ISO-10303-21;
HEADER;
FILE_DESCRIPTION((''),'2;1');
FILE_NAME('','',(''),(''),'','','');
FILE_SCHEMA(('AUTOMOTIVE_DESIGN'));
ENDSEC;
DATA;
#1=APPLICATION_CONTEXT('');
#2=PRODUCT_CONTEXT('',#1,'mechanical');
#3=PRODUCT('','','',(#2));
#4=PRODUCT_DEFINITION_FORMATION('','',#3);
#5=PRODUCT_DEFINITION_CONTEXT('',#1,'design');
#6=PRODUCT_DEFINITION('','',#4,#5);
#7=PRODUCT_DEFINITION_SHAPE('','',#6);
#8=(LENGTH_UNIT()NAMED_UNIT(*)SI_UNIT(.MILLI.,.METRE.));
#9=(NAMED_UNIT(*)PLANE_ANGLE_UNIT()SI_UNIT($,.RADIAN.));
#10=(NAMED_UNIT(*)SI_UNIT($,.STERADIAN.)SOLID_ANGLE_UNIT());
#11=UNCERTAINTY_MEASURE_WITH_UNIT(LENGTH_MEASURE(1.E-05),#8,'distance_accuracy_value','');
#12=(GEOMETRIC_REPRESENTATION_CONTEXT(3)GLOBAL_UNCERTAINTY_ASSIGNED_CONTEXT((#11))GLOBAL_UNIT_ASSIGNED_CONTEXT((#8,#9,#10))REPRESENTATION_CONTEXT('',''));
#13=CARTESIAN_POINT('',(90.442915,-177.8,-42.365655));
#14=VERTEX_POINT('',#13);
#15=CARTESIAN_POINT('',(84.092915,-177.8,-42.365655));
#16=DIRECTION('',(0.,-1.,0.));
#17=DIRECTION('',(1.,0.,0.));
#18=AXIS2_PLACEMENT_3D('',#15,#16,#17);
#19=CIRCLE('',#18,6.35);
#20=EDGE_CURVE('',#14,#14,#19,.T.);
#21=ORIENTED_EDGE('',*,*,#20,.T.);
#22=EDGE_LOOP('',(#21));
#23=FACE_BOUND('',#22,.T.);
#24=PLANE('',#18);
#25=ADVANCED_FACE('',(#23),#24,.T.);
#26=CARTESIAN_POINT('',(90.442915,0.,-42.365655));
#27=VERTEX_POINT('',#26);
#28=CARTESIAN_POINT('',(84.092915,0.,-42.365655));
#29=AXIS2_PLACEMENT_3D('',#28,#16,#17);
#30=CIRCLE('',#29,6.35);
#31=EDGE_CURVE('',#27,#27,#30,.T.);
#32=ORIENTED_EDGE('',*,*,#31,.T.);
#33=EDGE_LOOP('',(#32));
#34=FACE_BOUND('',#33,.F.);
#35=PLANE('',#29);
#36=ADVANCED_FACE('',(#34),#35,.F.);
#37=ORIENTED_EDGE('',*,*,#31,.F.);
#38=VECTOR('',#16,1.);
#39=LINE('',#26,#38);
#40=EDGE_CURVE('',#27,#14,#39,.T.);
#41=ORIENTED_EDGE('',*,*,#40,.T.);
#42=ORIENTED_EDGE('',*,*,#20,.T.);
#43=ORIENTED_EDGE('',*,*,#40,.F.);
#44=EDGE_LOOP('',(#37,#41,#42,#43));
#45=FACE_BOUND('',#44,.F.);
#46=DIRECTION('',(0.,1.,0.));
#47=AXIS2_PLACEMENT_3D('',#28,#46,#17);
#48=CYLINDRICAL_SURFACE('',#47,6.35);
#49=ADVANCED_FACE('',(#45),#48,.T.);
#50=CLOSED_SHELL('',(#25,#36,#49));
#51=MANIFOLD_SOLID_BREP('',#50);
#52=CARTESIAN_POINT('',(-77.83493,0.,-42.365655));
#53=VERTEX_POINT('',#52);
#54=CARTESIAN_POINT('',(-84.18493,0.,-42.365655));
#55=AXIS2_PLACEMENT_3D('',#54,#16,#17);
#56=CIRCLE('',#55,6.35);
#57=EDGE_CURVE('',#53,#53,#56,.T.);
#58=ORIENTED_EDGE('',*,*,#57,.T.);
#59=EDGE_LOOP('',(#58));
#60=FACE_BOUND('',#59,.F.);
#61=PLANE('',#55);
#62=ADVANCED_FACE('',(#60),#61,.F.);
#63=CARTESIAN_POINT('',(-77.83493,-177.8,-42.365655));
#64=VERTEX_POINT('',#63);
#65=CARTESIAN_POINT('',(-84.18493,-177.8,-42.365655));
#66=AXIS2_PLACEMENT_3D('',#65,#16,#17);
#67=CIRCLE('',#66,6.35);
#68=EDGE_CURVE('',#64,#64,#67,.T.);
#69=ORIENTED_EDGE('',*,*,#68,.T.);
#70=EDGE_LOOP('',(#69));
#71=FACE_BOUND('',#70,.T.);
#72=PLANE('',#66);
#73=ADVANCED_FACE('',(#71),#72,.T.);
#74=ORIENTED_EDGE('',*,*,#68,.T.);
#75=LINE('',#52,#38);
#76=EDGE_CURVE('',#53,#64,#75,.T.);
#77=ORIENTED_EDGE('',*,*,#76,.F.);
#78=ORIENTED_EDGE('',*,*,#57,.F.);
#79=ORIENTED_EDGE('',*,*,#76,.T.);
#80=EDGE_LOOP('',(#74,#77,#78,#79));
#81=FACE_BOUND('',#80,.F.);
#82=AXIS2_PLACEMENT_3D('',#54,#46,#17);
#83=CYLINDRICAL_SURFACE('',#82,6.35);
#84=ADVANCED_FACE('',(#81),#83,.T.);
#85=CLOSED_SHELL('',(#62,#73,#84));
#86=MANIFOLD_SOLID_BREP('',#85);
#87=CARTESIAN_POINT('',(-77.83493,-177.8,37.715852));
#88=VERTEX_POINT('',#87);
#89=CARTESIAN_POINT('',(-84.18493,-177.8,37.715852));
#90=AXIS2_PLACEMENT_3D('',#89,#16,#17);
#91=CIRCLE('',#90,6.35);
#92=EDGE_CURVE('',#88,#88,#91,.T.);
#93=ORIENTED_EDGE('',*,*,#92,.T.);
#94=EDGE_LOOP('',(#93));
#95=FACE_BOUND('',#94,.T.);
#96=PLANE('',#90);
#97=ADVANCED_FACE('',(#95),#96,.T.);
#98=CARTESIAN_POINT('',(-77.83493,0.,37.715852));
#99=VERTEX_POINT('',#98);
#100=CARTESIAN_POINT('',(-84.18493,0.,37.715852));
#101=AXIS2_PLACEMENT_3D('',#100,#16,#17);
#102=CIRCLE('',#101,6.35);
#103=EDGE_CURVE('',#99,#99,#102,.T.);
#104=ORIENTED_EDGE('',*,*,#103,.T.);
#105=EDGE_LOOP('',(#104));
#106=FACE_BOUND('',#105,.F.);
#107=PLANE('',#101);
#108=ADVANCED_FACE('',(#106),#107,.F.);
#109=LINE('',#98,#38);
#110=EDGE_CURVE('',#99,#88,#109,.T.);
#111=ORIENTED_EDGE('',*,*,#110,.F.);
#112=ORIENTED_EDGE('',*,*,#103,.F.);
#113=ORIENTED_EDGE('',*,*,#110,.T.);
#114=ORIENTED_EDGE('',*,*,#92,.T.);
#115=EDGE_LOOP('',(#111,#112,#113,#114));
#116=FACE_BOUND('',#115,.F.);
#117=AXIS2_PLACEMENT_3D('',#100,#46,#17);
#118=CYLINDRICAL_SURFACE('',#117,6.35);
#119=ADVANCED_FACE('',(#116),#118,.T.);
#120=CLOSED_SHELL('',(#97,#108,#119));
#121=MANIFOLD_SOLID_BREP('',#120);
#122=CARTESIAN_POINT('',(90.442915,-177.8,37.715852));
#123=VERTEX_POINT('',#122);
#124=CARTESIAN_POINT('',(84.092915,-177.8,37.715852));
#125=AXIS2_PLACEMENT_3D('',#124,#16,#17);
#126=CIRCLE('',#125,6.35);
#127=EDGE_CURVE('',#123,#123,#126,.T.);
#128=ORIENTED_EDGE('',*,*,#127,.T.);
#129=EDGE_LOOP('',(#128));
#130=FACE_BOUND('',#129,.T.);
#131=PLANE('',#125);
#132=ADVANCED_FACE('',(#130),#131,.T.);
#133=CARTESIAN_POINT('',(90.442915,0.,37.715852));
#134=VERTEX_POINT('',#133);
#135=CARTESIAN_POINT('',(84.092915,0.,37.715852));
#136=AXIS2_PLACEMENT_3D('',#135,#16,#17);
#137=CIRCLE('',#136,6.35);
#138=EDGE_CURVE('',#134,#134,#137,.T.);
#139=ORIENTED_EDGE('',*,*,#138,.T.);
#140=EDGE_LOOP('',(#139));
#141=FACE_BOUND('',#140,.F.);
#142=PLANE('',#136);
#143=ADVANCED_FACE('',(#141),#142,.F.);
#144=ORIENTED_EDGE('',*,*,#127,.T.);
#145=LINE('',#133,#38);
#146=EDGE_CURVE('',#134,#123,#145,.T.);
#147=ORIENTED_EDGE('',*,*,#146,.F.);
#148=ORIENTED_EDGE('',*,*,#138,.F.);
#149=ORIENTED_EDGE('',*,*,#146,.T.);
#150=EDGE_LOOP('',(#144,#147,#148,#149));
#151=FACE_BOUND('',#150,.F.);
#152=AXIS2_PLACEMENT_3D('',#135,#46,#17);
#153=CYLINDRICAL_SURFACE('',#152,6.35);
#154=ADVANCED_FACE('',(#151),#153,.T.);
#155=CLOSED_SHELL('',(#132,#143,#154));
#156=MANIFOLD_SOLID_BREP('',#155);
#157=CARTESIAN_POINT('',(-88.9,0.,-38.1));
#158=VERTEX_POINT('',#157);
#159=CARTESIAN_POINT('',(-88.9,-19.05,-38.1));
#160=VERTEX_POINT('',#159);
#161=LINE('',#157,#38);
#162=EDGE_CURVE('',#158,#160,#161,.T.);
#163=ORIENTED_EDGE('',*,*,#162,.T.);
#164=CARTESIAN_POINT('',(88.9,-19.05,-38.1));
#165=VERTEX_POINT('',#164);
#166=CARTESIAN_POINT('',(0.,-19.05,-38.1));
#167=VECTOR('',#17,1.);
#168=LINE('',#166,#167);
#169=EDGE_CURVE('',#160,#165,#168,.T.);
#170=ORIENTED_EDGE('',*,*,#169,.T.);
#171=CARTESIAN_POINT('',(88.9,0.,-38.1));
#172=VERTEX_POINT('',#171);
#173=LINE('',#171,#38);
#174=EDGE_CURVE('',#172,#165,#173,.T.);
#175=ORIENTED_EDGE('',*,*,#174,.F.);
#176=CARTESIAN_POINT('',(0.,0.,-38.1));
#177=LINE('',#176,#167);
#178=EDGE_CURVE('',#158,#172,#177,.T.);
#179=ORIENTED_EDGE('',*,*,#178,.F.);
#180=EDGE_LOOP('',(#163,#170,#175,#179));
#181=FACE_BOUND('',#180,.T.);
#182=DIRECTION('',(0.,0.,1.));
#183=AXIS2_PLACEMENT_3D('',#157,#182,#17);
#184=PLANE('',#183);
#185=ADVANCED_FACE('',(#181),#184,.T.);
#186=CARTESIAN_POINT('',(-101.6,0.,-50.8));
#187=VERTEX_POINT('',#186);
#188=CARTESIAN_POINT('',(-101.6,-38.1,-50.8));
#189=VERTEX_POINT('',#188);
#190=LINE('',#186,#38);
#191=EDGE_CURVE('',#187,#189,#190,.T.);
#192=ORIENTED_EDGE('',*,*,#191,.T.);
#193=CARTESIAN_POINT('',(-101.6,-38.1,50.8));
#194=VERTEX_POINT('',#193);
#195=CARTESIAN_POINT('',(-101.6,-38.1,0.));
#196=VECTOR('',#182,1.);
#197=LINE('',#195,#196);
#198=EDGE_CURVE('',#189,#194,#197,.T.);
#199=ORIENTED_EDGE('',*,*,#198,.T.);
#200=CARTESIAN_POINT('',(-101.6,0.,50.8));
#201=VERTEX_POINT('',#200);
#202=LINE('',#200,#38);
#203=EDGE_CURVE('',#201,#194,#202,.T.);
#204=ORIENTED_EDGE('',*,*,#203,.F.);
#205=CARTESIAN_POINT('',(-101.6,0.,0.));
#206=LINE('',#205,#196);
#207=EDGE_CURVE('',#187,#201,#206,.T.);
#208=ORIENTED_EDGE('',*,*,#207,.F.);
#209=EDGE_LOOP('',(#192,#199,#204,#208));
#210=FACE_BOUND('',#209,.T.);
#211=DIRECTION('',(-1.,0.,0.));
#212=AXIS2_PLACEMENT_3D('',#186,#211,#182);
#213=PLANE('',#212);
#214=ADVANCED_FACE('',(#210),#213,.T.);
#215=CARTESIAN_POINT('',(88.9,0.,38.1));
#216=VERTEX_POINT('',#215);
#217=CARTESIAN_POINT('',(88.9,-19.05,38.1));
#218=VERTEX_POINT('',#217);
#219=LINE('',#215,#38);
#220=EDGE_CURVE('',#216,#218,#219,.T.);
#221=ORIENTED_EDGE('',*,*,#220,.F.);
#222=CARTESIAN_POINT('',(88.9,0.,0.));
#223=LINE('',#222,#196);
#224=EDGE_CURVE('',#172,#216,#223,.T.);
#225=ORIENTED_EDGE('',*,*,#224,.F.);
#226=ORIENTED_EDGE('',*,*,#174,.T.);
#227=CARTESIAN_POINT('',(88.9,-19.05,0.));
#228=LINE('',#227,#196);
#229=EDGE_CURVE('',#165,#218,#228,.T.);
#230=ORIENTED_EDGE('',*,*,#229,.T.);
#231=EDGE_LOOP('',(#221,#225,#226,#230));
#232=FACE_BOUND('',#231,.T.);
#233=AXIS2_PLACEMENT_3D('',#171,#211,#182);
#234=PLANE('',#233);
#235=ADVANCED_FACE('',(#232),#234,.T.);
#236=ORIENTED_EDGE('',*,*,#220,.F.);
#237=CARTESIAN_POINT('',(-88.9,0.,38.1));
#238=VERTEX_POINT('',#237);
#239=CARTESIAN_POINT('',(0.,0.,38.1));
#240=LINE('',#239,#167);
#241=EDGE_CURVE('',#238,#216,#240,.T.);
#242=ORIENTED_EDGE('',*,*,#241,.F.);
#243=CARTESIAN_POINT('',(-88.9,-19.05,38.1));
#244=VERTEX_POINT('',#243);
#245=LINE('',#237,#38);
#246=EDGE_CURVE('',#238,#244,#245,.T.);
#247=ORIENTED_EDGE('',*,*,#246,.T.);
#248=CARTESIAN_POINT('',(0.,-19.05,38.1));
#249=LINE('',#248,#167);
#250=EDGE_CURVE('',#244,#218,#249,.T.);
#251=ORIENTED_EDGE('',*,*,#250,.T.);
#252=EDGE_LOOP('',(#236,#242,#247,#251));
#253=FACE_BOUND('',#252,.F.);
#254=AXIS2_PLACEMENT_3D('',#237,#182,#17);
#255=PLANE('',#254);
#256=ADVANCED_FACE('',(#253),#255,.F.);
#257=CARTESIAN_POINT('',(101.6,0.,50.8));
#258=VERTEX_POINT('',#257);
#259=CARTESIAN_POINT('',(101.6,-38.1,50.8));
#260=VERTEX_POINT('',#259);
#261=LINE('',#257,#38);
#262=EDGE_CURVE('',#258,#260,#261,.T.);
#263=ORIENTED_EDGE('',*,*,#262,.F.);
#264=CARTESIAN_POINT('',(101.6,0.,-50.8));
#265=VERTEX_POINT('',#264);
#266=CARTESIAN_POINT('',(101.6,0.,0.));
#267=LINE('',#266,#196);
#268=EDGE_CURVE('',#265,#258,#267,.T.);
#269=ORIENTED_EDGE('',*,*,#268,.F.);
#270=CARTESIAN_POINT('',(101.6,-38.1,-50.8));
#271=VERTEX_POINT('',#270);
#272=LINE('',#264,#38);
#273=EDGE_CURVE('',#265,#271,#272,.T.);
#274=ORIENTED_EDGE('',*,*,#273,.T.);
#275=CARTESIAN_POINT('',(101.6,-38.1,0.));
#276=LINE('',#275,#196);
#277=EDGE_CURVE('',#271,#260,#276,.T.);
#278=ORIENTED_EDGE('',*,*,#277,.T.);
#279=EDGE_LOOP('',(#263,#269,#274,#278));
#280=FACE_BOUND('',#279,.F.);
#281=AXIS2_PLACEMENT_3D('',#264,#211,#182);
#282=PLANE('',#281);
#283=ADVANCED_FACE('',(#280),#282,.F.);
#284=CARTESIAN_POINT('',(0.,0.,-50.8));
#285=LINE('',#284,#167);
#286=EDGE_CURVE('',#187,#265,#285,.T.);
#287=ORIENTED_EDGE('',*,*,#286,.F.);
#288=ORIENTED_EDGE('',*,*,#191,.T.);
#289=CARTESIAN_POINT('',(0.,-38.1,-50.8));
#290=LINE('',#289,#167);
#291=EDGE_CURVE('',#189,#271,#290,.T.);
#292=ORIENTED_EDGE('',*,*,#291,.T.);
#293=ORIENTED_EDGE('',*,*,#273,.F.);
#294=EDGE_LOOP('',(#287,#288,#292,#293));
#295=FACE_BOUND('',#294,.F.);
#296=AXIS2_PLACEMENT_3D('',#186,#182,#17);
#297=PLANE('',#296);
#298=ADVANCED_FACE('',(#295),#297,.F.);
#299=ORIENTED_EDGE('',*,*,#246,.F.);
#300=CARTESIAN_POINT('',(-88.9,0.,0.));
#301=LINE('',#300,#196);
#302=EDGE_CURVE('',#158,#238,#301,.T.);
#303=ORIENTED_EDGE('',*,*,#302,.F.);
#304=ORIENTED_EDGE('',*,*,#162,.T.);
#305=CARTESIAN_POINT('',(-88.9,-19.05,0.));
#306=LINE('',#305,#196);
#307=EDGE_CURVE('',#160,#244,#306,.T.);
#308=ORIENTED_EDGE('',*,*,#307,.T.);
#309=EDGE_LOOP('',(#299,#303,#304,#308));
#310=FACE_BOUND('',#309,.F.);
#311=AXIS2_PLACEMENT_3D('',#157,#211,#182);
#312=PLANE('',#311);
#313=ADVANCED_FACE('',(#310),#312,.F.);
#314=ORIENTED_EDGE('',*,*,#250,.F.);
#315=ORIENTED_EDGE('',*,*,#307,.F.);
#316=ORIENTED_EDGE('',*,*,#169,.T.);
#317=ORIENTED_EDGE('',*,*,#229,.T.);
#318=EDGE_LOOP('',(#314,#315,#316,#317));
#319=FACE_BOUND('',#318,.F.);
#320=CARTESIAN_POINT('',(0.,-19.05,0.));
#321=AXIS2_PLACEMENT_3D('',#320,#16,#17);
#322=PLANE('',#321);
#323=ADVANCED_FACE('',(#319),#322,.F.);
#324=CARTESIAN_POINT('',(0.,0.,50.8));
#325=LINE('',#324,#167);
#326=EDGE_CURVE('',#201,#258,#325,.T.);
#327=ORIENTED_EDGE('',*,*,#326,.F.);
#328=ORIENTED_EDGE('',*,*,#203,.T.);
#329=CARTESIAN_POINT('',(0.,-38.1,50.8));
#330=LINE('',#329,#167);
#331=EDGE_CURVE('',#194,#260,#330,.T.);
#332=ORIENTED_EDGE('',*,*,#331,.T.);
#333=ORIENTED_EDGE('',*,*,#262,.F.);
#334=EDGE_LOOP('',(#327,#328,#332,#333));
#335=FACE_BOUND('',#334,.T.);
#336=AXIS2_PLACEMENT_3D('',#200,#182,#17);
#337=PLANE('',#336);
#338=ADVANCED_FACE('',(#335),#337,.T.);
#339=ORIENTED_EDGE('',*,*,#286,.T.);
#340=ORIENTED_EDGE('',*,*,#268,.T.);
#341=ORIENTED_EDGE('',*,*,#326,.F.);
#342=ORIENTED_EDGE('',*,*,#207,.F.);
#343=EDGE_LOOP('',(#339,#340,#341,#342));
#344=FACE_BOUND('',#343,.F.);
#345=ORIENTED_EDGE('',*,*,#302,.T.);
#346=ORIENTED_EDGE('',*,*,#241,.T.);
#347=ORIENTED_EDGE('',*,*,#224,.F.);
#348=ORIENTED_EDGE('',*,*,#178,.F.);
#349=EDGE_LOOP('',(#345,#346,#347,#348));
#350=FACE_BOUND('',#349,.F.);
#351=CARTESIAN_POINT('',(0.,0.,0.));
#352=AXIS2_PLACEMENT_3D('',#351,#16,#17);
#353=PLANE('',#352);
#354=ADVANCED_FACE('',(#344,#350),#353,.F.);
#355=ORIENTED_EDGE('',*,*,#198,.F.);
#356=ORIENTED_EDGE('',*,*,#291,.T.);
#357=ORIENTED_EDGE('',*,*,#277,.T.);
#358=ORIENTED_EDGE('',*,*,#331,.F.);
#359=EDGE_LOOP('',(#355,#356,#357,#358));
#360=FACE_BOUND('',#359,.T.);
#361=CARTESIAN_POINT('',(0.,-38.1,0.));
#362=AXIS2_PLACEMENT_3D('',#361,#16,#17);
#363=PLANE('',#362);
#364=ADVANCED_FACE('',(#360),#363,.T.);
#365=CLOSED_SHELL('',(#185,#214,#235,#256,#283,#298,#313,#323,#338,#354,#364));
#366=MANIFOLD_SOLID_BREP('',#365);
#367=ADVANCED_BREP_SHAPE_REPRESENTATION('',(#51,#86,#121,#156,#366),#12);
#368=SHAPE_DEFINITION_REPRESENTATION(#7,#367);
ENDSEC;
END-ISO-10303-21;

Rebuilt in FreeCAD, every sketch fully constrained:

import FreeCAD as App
import Part
import Sketcher

V = App.Vector
Q = App.Units.Quantity


def add_polygon(sketch, points):
    """Adds a closed chain of lines whose ends are joined by coincident constraints."""
    first, n = sketch.GeometryCount, len(points)
    for a, b in zip(points, points[1:] + points[:1]):
        sketch.addGeometry(Part.LineSegment(App.Vector(*a, 0), App.Vector(*b, 0)), False)
    for i in range(n):
        sketch.addConstraint(Sketcher.Constraint("Coincident", first + i, 2, first + (i + 1) % n, 1))

doc = App.newDocument("Part")
body = doc.addObject("PartDesign::Body", "Body")

sketch1 = body.newObject("Sketcher::SketchObject", "Sketch")
sketch1.AttachmentSupport = (doc.getObject("XZ_Plane"), [""])
sketch1.MapMode = "FlatFace"
add_polygon(sketch1, [(-102, 51), (-102, -51), (102, -51), (102, 51)])
sketch1.addConstraint([
    Sketcher.Constraint("Vertical", 0),
    Sketcher.Constraint("Horizontal", 1),
    Sketcher.Constraint("Vertical", 2),
    Sketcher.Constraint("Horizontal", 3),
    Sketcher.Constraint("Symmetric", 0, 2, 2, 2, -1, 1),
    Sketcher.Constraint("DistanceX", 1, 1, 1, 2, Q("8 in")),
    Sketcher.Constraint("DistanceY", 0, 2, 0, 1, Q("4 in")),
])
pad1 = body.newObject("PartDesign::Pad", "Pad")
pad1.Profile = sketch1
pad1.Length = Q("1.5 in")

sketch2 = body.newObject("Sketcher::SketchObject", "Sketch001")
sketch2.AttachmentSupport = (doc.getObject("XZ_Plane"), [""])
sketch2.MapMode = "FlatFace"
add_polygon(sketch2, [(-89, 38), (-89, -38), (89, -38), (89, 38)])
sketch2.addConstraint([
    Sketcher.Constraint("Vertical", 0),
    Sketcher.Constraint("Horizontal", 1),
    Sketcher.Constraint("Vertical", 2),
    Sketcher.Constraint("Horizontal", 3),
    Sketcher.Constraint("Symmetric", 0, 2, 2, 2, -1, 1),
    Sketcher.Constraint("DistanceX", 1, 1, 1, 2, Q("7 in")),
    Sketcher.Constraint("DistanceY", 0, 2, 0, 1, Q("3 in")),
])
pocket1 = body.newObject("PartDesign::Pocket", "Pocket")
pocket1.Profile = sketch2
pocket1.Length = Q("0.75 in")
pocket1.Reversed = True
body2 = doc.addObject("PartDesign::Body", "Body001")
body2.AllowCompound = True

sketch3 = body2.newObject("Sketcher::SketchObject", "Sketch002")
sketch3.AttachmentSupport = (doc.getObject("XZ_Plane001"), [""])
sketch3.MapMode = "FlatFace"
sketch3.addGeometry([
    Part.Circle(V(-84, -42, 0), V(0, 0, 1), 6),
    Part.Circle(V(-84, 38, 0), V(0, 0, 1), 6),
    Part.Circle(V(84, -42, 0), V(0, 0, 1), 6),
    Part.Circle(V(84, 38, 0), V(0, 0, 1), 6),
], False)
sketch3.addConstraint([
    Sketcher.Constraint("Equal", 0, 1),
    Sketcher.Constraint("Equal", 1, 2),
    Sketcher.Constraint("Equal", 2, 3),
    Sketcher.Constraint("Horizontal", 0, 3, 2, 3),
    Sketcher.Constraint("Horizontal", 1, 3, 3, 3),
    Sketcher.Constraint("Vertical", 0, 3, 1, 3),
    Sketcher.Constraint("Vertical", 2, 3, 3, 3),
    Sketcher.Constraint("Diameter", 0, Q("0.5 in")),
    Sketcher.Constraint("DistanceX", 0, 3, -1, 1, 84.18493),
    Sketcher.Constraint("DistanceY", -1, 1, 1, 3, 37.715852),
    Sketcher.Constraint("DistanceY", 0, 3, -1, 1, 42.365655),
    Sketcher.Constraint("DistanceX", -1, 1, 2, 3, 84.092915),
])
pad2 = body2.newObject("PartDesign::Pad", "Pad001")
pad2.Profile = sketch3
pad2.Length = Q("7 in")

doc.recompute()
